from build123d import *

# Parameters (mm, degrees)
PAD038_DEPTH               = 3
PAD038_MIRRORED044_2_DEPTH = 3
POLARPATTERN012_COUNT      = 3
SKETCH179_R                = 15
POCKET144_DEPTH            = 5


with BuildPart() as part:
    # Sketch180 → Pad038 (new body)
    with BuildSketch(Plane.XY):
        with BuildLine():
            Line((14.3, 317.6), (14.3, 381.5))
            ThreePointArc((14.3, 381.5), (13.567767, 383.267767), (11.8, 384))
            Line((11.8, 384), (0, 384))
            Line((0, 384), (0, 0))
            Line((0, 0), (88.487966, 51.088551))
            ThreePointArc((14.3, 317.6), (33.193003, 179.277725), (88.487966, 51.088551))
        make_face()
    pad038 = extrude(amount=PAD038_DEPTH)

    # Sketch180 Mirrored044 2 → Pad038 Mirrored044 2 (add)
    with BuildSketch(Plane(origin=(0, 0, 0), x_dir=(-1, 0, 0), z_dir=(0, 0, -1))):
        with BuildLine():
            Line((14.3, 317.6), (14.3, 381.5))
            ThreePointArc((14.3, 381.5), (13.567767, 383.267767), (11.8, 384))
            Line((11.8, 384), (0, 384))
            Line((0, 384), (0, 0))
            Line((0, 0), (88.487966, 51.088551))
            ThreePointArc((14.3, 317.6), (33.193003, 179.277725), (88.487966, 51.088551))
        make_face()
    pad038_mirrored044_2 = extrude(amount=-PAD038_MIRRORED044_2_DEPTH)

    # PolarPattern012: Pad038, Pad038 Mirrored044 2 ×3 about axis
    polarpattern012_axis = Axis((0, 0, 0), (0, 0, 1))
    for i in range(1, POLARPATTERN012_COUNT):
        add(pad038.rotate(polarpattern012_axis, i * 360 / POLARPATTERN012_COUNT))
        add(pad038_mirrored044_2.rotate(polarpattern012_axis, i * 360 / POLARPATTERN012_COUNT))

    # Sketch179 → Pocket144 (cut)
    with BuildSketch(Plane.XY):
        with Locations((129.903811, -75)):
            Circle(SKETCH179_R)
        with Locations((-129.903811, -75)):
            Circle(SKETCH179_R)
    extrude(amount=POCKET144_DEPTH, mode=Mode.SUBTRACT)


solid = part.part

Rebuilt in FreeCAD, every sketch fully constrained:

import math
import FreeCAD as App
import Part
import Sketcher
from FreeCAD import Vector
Q = App.Units.Quantity

doc = App.newDocument("Part")
params = doc.addObject("Spreadsheet::Sheet", "Params")
for row, (alias, value) in enumerate([
    ("sketch1_radius", "2.5 mm"),
    ("sketch1_height", "384 mm"),
    ("sketch1_width", "11.8 mm"),
    ("sketch1_height2", "63.9 mm"),
    ("pad1_length", "3 mm"),
    ("sketch2_radius", "2.5 mm"),
    ("sketch2_height", "384 mm"),
    ("sketch2_width", "11.8 mm"),
    ("sketch2_height2", "63.9 mm"),
    ("pad2_length", "3 mm"),
    ("sketch3_diameter", "30 mm"),
    ("pocket1_length", "5 mm"),
], start=1):
    params.set(f"A{row}", alias)
    params.set(f"B{row}", "=" + value)
    params.setAlias(f"B{row}", alias)

body = doc.addObject("PartDesign::Body", "Body")

sketch1 = body.newObject("Sketcher::SketchObject", "Sketch")
sketch1.AttachmentSupport = (doc.getObject("XY_Plane"), [""])
sketch1.MapMode = "FlatFace"
sketch1.addGeometry([
    Part.LineSegment(Vector(14.3, 317.6, 0), Vector(14.3, 381.5, 0)),
    Part.ArcOfCircle(Part.Circle(Vector(11.8, 381.5, 0), Vector(0, 0, 1), 2.5), math.radians(-0.000004), math.radians(90.000004)),
    Part.LineSegment(Vector(11.8, 384, 0), Vector(0, 384, 0)),
    Part.LineSegment(Vector(0, 384, 0), Vector(0, 0, 0)),
    Part.LineSegment(Vector(0, 0, 0), Vector(88.487966, 51.088551, 0)),
    Part.ArcOfCircle(Part.Circle(Vector(530.099317, 317.599995, 0), Vector(0, 0, 1), 515.799317), math.radians(179.999999), math.radians(211.110886)),
], False)
sketch1.addConstraint([
    Sketcher.Constraint("Tangent", 0, 2, 1, 1),
    Sketcher.Constraint("Tangent", 1, 2, 2, 1),
    Sketcher.Constraint("Coincident", 2, 2, 3, 1),
    Sketcher.Constraint("Coincident", 3, 2, 4, 1),
    Sketcher.Constraint("Coincident", 4, 2, 5, 2),
    Sketcher.Constraint("Tangent", 5, 1, 0, 1),
    Sketcher.Constraint("Vertical", 0),
    Sketcher.Constraint("Horizontal", 2),
    Sketcher.Constraint("Vertical", 3),
    Sketcher.Constraint("Coincident", 3, 2, -1, 1),
    Sketcher.Constraint("Radius", 1, 2.5),
    Sketcher.Constraint("DistanceY", 3, 2, 3, 1, 384.0),
    Sketcher.Constraint("Angle", 4, Q("30 deg")),
    Sketcher.Constraint("DistanceX", 2, 2, 2, 1, 11.8),
    Sketcher.Constraint("DistanceY", 0, 1, 0, 2, 63.9),
    Sketcher.Constraint("Radius", 5, 515.799317),
])
sketch1.setExpression("Constraints[10]", "Params.sketch1_radius")
sketch1.setExpression("Constraints[11]", "Params.sketch1_height")
sketch1.setExpression("Constraints[13]", "Params.sketch1_width")
sketch1.setExpression("Constraints[14]", "Params.sketch1_height2")
pad1 = body.newObject("PartDesign::Pad", "Pad")
pad1.Profile = sketch1
pad1.setExpression("Length", "Params.pad1_length")

sketch2 = body.newObject("Sketcher::SketchObject", "Sketch001")
sketch2.AttachmentSupport = (doc.getObject("XY_Plane"), [""])
sketch2.MapMode = "FlatFace"
sketch2.addGeometry([
    Part.LineSegment(Vector(-14.3, 317.6, 0), Vector(-14.3, 381.5, 0)),
    Part.ArcOfCircle(Part.Circle(Vector(-11.8, 381.5, 0), Vector(0, 0, 1), 2.5), math.radians(89.999996), math.radians(180.000004)),
    Part.LineSegment(Vector(-11.8, 384, 0), Vector(0, 384, 0)),
    Part.LineSegment(Vector(0, 384, 0), Vector(0, 0, 0)),
    Part.LineSegment(Vector(0, 0, 0), Vector(-88.487966, 51.088551, 0)),
    Part.ArcOfCircle(Part.Circle(Vector(-530.099317, 317.599995, 0), Vector(0, 0, 1), 515.799317), math.radians(-31.110886), math.radians(0.000001)),
], False)
sketch2.addConstraint([
    Sketcher.Constraint("Tangent", 0, 2, 1, 2),
    Sketcher.Constraint("Tangent", 1, 1, 2, 1),
    Sketcher.Constraint("Coincident", 2, 2, 3, 1),
    Sketcher.Constraint("Coincident", 3, 2, 4, 1),
    Sketcher.Constraint("Coincident", 4, 2, 5, 1),
    Sketcher.Constraint("Tangent", 5, 2, 0, 1),
    Sketcher.Constraint("Vertical", 0),
    Sketcher.Constraint("Horizontal", 2),
    Sketcher.Constraint("Vertical", 3),
    Sketcher.Constraint("Coincident", 3, 2, -1, 1),
    Sketcher.Constraint("Radius", 1, 2.5),
    Sketcher.Constraint("DistanceY", 3, 2, 3, 1, 384.0),
    Sketcher.Constraint("Angle", 4, Q("150 deg")),
    Sketcher.Constraint("DistanceX", 2, 1, 2, 2, 11.8),
    Sketcher.Constraint("DistanceY", 0, 1, 0, 2, 63.9),
    Sketcher.Constraint("Radius", 5, 515.799317),
])
sketch2.setExpression("Constraints[10]", "Params.sketch2_radius")
sketch2.setExpression("Constraints[11]", "Params.sketch2_height")
sketch2.setExpression("Constraints[13]", "Params.sketch2_width")
sketch2.setExpression("Constraints[14]", "Params.sketch2_height2")
pad2 = body.newObject("PartDesign::Pad", "Pad001")
pad2.Profile = sketch2
pad2.setExpression("Length", "Params.pad2_length")
doc.recompute()

polarpattern = body.newObject("PartDesign::PolarPattern", "PolarPattern")
polarpattern.Originals = [pad1, pad2]
polarpattern.Axis = (doc.getObject("Z_Axis"), [""])
polarpattern.Angle = 360
polarpattern.Occurrences = 3
body.Tip = polarpattern

sketch3 = body.newObject("Sketcher::SketchObject", "Sketch002")
sketch3.AttachmentSupport = (doc.getObject("XY_Plane"), [""])
sketch3.MapMode = "FlatFace"
sketch3.addGeometry([
    Part.Circle(Vector(129.903811, -75, 0), Vector(0, 0, 1), 15),
    Part.Circle(Vector(-129.903811, -75, 0), Vector(0, 0, 1), 15),
], False)
sketch3.addConstraint([
    Sketcher.Constraint("Equal", 0, 1),
    Sketcher.Constraint("Symmetric", 0, 3, 1, 3, -2),
    Sketcher.Constraint("Diameter", 0, 30.0),
    Sketcher.Constraint("DistanceY", 0, 3, -1, 1, 75.0),
    Sketcher.Constraint("DistanceX", -1, 1, 0, 3, 129.903811),
])
sketch3.setExpression("Constraints[2]", "Params.sketch3_diameter")
pocket1 = body.newObject("PartDesign::Pocket", "Pocket")
pocket1.Profile = sketch3
pocket1.setExpression("Length", "Params.pocket1_length")
pocket1.Reversed = True

doc.recompute()
